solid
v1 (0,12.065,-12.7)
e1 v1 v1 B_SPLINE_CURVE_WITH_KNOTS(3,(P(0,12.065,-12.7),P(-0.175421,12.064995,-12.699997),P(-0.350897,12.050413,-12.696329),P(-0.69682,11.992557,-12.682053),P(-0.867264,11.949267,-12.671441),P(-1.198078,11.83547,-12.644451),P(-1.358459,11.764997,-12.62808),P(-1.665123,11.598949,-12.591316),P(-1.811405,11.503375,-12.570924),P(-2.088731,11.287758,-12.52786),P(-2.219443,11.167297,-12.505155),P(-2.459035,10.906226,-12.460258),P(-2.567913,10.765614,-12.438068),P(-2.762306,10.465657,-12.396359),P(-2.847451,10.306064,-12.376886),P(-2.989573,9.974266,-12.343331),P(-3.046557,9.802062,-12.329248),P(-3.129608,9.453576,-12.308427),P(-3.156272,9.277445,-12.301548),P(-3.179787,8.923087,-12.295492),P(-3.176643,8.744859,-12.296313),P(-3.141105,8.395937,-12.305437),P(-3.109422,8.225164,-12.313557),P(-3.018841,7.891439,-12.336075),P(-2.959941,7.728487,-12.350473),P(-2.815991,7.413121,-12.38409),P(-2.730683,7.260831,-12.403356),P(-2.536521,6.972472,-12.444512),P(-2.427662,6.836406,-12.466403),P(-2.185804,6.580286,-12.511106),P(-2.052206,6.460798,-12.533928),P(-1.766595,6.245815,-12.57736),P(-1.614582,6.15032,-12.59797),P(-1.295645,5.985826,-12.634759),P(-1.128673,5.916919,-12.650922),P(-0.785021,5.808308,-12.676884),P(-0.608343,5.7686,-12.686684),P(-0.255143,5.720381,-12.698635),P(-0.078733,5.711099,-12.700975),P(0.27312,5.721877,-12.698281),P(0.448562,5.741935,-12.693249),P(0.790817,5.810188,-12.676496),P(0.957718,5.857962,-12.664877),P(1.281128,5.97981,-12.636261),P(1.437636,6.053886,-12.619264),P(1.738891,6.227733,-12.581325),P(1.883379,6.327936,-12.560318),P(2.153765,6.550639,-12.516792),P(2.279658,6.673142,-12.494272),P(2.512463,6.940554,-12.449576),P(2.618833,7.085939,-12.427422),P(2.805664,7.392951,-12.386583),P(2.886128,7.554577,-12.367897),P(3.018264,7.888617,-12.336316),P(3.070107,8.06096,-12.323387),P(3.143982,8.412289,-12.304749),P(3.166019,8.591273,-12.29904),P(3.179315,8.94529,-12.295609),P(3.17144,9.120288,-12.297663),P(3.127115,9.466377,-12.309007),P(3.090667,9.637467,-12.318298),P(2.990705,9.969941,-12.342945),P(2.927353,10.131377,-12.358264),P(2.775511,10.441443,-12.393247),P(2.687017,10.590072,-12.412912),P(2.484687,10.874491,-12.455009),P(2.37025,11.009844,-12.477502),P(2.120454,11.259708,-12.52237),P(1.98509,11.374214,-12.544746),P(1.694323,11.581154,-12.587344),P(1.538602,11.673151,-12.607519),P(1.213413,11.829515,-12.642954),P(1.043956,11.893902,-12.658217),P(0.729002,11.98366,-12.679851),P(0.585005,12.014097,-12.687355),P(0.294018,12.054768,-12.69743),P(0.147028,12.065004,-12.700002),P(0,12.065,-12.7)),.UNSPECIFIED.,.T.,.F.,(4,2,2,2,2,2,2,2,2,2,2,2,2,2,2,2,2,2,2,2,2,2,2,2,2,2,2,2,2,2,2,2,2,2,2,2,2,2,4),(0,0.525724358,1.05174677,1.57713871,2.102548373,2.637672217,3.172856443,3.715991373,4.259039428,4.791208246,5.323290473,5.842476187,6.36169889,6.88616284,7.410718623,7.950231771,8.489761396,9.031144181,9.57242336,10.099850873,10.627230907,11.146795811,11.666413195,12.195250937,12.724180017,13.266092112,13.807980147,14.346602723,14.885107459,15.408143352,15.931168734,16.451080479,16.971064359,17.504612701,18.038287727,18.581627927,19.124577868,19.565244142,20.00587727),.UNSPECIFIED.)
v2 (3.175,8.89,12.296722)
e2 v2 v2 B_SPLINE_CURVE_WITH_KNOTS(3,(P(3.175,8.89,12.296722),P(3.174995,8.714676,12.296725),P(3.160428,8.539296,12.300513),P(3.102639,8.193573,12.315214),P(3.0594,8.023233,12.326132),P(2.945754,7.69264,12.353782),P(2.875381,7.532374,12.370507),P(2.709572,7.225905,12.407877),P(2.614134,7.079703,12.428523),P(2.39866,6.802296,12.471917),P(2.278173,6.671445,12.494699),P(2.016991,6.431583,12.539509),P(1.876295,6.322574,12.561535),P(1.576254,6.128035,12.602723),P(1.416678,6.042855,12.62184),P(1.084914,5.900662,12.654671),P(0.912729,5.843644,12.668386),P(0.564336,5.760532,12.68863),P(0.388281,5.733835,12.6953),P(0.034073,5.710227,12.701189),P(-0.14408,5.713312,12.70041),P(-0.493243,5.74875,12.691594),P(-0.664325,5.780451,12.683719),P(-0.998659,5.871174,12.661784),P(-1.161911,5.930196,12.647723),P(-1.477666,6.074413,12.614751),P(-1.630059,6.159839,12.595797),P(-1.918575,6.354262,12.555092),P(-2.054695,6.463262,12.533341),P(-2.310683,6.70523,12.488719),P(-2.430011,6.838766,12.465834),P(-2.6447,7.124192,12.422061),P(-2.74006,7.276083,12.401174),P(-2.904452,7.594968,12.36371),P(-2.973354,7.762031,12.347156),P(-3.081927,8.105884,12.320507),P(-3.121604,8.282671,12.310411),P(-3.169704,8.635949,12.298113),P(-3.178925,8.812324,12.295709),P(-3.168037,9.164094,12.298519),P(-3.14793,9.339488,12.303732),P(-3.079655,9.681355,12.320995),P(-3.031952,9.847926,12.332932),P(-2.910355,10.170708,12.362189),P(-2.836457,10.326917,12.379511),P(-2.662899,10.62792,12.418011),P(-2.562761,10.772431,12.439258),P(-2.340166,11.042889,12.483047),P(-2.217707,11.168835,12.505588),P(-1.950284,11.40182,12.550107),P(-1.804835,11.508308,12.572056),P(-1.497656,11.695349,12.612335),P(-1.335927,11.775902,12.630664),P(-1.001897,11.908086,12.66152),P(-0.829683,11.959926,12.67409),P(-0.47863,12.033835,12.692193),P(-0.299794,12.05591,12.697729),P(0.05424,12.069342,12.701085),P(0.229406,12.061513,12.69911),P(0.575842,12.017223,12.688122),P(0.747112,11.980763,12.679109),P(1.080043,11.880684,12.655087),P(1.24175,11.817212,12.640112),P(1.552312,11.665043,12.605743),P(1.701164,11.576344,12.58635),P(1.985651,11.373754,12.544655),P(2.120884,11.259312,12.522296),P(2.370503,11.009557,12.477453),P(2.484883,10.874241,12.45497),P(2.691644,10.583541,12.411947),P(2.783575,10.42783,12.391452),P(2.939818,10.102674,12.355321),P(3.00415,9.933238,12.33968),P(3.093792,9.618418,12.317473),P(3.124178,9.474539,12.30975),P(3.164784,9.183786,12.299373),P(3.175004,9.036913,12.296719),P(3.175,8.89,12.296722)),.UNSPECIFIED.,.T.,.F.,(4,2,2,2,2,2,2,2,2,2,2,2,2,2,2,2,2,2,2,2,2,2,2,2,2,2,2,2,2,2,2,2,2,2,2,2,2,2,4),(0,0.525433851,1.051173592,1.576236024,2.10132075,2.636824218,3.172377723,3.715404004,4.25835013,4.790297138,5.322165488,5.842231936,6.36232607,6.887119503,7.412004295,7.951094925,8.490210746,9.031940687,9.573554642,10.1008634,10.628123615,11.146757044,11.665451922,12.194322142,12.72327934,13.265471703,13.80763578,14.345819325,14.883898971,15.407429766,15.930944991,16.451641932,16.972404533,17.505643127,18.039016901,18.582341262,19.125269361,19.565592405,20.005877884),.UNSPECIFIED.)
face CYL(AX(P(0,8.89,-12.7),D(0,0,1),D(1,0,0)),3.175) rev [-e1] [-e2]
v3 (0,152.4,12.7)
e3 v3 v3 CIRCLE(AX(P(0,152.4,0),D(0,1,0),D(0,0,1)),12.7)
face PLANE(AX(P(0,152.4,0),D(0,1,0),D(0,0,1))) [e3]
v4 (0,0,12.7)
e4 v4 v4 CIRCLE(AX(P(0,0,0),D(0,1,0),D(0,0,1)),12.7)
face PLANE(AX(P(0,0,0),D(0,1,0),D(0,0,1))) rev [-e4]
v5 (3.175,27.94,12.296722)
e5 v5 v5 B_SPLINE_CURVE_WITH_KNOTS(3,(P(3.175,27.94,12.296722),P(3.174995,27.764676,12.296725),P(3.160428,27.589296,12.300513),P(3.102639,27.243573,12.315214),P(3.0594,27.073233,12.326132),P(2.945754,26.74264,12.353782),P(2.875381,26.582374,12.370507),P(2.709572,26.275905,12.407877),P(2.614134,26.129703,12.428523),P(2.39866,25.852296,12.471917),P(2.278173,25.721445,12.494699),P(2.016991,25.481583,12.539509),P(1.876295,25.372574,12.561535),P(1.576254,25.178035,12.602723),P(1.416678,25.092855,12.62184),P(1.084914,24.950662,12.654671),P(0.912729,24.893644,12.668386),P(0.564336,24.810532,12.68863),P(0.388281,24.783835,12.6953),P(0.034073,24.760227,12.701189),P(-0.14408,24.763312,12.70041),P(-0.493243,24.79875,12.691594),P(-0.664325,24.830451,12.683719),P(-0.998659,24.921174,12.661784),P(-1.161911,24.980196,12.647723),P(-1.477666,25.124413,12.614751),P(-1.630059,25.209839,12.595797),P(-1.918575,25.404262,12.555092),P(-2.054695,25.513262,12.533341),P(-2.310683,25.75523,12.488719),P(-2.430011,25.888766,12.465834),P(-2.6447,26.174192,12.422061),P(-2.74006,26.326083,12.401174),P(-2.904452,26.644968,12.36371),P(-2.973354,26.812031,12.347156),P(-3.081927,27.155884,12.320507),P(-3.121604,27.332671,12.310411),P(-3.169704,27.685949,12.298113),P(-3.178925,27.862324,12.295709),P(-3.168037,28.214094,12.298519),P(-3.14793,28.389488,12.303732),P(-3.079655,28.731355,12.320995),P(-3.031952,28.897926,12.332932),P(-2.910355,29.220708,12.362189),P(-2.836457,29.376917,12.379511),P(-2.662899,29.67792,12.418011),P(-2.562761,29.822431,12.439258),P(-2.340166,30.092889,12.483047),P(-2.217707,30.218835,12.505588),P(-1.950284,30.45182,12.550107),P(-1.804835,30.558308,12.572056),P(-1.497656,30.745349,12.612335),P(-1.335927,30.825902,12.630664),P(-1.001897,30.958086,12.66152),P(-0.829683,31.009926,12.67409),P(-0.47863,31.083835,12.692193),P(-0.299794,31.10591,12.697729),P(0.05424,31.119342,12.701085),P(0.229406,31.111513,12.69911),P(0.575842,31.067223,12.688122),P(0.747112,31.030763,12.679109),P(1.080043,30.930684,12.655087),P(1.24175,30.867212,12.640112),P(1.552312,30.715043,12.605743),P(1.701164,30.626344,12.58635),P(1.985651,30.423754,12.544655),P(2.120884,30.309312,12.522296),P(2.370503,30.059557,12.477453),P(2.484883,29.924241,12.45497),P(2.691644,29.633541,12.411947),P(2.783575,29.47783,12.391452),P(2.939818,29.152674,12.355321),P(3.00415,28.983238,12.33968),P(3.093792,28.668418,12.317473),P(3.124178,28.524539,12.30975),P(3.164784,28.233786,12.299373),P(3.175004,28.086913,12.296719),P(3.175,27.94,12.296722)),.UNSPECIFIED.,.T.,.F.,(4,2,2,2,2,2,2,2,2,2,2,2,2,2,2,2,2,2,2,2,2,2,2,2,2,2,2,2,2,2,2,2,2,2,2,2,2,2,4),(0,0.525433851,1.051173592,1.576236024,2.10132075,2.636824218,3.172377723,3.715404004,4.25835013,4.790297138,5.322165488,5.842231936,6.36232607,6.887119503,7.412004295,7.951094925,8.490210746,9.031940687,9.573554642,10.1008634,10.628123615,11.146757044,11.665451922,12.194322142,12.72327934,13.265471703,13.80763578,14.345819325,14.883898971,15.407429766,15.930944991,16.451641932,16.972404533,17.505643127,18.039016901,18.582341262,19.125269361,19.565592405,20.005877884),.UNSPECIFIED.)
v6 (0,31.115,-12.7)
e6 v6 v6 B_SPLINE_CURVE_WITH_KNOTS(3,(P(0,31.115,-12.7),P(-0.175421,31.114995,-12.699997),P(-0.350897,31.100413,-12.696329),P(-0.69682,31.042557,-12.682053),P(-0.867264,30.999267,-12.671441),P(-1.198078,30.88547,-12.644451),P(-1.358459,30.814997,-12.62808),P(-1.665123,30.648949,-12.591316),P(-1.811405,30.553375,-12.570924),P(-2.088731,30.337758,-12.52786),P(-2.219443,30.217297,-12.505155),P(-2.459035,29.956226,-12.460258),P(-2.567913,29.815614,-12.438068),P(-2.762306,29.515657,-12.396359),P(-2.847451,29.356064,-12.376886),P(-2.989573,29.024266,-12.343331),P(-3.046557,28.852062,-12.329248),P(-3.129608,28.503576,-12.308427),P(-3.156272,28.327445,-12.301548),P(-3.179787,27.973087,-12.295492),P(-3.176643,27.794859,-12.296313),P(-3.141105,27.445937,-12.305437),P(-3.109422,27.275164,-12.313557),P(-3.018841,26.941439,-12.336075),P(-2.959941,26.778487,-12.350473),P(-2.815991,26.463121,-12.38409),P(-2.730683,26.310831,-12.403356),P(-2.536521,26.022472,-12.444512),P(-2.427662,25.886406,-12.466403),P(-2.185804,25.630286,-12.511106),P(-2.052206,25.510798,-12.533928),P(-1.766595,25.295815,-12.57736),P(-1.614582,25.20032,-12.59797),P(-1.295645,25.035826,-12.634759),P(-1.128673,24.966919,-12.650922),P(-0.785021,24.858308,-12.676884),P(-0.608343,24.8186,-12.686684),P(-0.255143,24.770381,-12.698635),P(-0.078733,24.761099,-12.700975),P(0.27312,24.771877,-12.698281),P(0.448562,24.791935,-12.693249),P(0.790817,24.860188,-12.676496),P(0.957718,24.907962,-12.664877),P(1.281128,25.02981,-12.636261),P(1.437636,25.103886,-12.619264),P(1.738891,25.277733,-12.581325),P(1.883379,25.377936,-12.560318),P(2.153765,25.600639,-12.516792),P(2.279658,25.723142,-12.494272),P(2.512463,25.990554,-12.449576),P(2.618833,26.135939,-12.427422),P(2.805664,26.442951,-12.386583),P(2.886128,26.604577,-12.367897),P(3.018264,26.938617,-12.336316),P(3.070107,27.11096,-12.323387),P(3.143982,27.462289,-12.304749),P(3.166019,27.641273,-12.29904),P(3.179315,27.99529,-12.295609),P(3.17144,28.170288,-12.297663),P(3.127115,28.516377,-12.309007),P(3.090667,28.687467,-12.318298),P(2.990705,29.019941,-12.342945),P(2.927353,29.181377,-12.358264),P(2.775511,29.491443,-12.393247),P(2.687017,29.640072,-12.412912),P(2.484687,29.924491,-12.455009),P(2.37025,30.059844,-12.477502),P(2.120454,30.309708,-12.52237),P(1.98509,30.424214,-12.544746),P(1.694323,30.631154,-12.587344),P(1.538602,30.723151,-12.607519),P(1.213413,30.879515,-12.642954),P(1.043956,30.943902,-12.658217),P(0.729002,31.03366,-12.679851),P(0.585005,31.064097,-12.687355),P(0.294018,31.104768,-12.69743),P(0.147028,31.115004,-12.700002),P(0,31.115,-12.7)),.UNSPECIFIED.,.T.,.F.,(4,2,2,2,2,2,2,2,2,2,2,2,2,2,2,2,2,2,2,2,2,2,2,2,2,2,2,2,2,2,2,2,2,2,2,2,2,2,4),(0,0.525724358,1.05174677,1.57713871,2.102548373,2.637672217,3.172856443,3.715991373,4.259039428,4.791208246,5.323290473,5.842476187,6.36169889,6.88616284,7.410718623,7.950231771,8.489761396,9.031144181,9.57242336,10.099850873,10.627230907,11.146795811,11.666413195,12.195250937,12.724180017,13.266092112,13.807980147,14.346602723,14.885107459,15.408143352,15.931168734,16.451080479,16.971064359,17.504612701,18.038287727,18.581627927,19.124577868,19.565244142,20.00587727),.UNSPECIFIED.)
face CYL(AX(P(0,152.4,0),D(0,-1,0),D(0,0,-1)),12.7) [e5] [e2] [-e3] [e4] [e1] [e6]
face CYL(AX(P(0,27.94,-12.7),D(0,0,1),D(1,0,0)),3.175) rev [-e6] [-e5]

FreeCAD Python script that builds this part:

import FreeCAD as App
import Part
import Sketcher
Q = App.Units.Quantity

doc = App.newDocument("Part")
params = doc.addObject("Spreadsheet::Sheet", "Params")
for row, (alias, value) in enumerate([
    ("sketch1_diameter", "1 in"),
    ("pad1_length", "6 in"),
    ("sketch2_diameter", "0.25 in"),
], start=1):
    params.set(f"A{row}", alias)
    params.set(f"B{row}", "=" + value)
    params.setAlias(f"B{row}", alias)

body = doc.addObject("PartDesign::Body", "Body")

# Sketch on XZ plane
sketch1 = body.newObject("Sketcher::SketchObject", "Sketch")
sketch1.AttachmentSupport = (doc.getObject("XZ_Plane"), [""])
sketch1.MapMode = "FlatFace"
sketch1.addGeometry(Part.Circle(App.Vector(0, 0, 0), App.Vector(0, 0, 1), 13), False)
sketch1.addConstraint(Sketcher.Constraint("Coincident", 0, 3, -1, 1))
sketch1.addConstraint(Sketcher.Constraint("Diameter", 0, Q("1 in")))
sketch1.setExpression("Constraints[1]", "Params.sketch1_diameter")
pad1 = body.newObject("PartDesign::Pad", "Pad")
pad1.Profile = sketch1
pad1.setExpression("Length", "Params.pad1_length")
pad1.Reversed = True

# Sketch on XY plane
sketch2 = body.newObject("Sketcher::SketchObject", "Sketch001")
sketch2.AttachmentSupport = (doc.getObject("XY_Plane"), [""])
sketch2.MapMode = "FlatFace"
sketch2.AttachmentOffset = App.Placement(App.Vector(0, 0, 0.5 * 25.4), App.Rotation())
sketch2.addGeometry(Part.Circle(App.Vector(0, 27.9, 0), App.Vector(0, 0, 1), 3.2), False)
sketch2.addGeometry(Part.Circle(App.Vector(0, 8.9, 0), App.Vector(0, 0, 1), 3.2), False)
sketch2.addConstraint(Sketcher.Constraint("Equal", 0, 1))
sketch2.addConstraint(Sketcher.Constraint("PointOnObject", 0, 3, -2))
sketch2.addConstraint(Sketcher.Constraint("PointOnObject", 1, 3, -2))
sketch2.addConstraint(Sketcher.Constraint("Diameter", 0, Q("0.25 in")))
sketch2.addConstraint(Sketcher.Constraint("DistanceY", -1, 1, 0, 3, Q("1.1 in")))
sketch2.addConstraint(Sketcher.Constraint("DistanceY", -1, 1, 1, 3, Q("0.35 in")))
sketch2.setExpression("Constraints[3]", "Params.sketch2_diameter")
pocket1 = body.newObject("PartDesign::Pocket", "Pocket")
pocket1.Profile = sketch2
pocket1.Type = "ThroughAll"

doc.recompute()
